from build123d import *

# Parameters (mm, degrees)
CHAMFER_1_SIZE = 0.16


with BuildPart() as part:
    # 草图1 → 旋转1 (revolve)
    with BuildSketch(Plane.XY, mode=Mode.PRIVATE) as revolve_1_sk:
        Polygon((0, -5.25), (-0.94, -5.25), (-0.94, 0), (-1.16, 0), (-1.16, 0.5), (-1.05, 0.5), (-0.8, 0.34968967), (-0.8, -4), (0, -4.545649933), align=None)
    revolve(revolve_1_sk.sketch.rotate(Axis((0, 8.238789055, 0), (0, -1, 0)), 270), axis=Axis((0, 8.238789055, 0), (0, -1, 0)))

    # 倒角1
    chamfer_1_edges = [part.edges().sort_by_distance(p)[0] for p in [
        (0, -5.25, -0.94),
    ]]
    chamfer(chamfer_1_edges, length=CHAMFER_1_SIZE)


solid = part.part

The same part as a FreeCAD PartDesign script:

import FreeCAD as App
import Part
import Sketcher


def edges_at(feature, points):
    """Names of the edges that pass closest to the given points."""
    edges = feature.Shape.Edges
    near = lambda p: min(range(len(edges)), key=lambda i: edges[i].distToShape(Part.Vertex(*p))[0])
    return sorted({f"Edge{near(p) + 1}" for p in points})

doc = App.newDocument("Part")
params = doc.addObject("Spreadsheet::Sheet", "Params")
for row, (alias, value) in enumerate([
    ("sketch1_height", "0.5 mm"),
    ("sketch1_width", "0.94 mm"),
    ("sketch1_width2", "0.11 mm"),
    ("sketch1_width3", "0.22 mm"),
    ("sketch1_height2", "5.25 mm"),
    ("revolution_angle", "360 deg"),
    ("chamfer_size", "0.16 mm"),
], start=1):
    params.set(f"A{row}", alias)
    params.set(f"B{row}", "=" + value)
    params.setAlias(f"B{row}", alias)

body = doc.addObject("PartDesign::Body", "Body")

# Sketch on XY plane
sketch1 = body.newObject("Sketcher::SketchObject", "Sketch")
sketch1.AttachmentSupport = (doc.getObject("XY_Plane"), [""])
sketch1.MapMode = "FlatFace"
sketch1.addGeometry([
    Part.LineSegment(App.Vector(-0.94, -5.25, 0), App.Vector(0, -5.25, 0)),  # 0
    Part.LineSegment(App.Vector(0, -5.25, 0), App.Vector(0, -4.55, 0)),  # 1
    Part.LineSegment(App.Vector(0, -4.55, 0), App.Vector(-0.8, -4, 0)),  # 2
    Part.LineSegment(App.Vector(-0.8, -4, 0), App.Vector(-0.8, 0.35, 0)),  # 3
    Part.LineSegment(App.Vector(-0.8, 0.35, 0), App.Vector(-1.05, 0.5, 0)),  # 4
    Part.LineSegment(App.Vector(-1.05, 0.5, 0), App.Vector(-1.16, 0.5, 0)),  # 5
    Part.LineSegment(App.Vector(-1.16, 0.5, 0), App.Vector(-1.16, 0, 0)),  # 6
    Part.LineSegment(App.Vector(-1.16, 0, 0), App.Vector(-0.94, 0, 0)),  # 7
    Part.LineSegment(App.Vector(-0.94, 0, 0), App.Vector(-0.94, -5.25, 0)),  # 8
], False)
sketch1.addConstraint([
    Sketcher.Constraint("Coincident", 0, 2, 1, 1),
    Sketcher.Constraint("Coincident", 1, 2, 2, 1),
    Sketcher.Constraint("Coincident", 2, 2, 3, 1),
    Sketcher.Constraint("Coincident", 3, 2, 4, 1),
    Sketcher.Constraint("Coincident", 4, 2, 5, 1),
    Sketcher.Constraint("Coincident", 5, 2, 6, 1),
    Sketcher.Constraint("Coincident", 6, 2, 7, 1),
    Sketcher.Constraint("Coincident", 7, 2, 8, 1),
    Sketcher.Constraint("Coincident", 8, 2, 0, 1),
    Sketcher.Constraint("Horizontal", 0),
    Sketcher.Constraint("Vertical", 1),
    Sketcher.Constraint("Vertical", 3),
    Sketcher.Constraint("Horizontal", 5),
    Sketcher.Constraint("Vertical", 6),
    Sketcher.Constraint("Horizontal", 7),
    Sketcher.Constraint("Vertical", 8),
    Sketcher.Constraint("PointOnObject", 0, 2, -2),
    Sketcher.Constraint("PointOnObject", 6, 2, -1),
    Sketcher.Constraint("DistanceY", 6, 2, 6, 1, 0.5),
    Sketcher.Constraint("DistanceY", 2, 2, -1, 1, 4.0),
    Sketcher.Constraint("DistanceX", 0, 1, 0, 2, 0.94),
    Sketcher.Constraint("DistanceX", 5, 2, 5, 1, 0.11),
    Sketcher.Constraint("DistanceX", 7, 1, 7, 2, 0.22),
    Sketcher.Constraint("DistanceY", 8, 2, 8, 1, 5.25),
    Sketcher.Constraint("DistanceX", 2, 2, -1, 1, 0.8),
    Sketcher.Constraint("DistanceY", 1, 1, 1, 2, 0.70435),
    Sketcher.Constraint("DistanceY", 3, 1, 3, 2, 4.34969),
])
sketch1.setExpression("Constraints[18]", "Params.sketch1_height")
sketch1.setExpression("Constraints[20]", "Params.sketch1_width")
sketch1.setExpression("Constraints[21]", "Params.sketch1_width2")
sketch1.setExpression("Constraints[22]", "Params.sketch1_width3")
sketch1.setExpression("Constraints[23]", "Params.sketch1_height2")
revolution = body.newObject("PartDesign::Revolution", "Revolution")
revolution.Profile = sketch1
revolution.ReferenceAxis = (sketch1, ["V_Axis"])
revolution.setExpression("Angle", "Params.revolution_angle")
doc.recompute()

chamfer = body.newObject("PartDesign::Chamfer", "Chamfer")
chamfer.Base = (revolution, edges_at(revolution, [(0, -5.25, -0.94)]))
chamfer.setExpression("Size", "Params.chamfer_size")

doc.recompute()
